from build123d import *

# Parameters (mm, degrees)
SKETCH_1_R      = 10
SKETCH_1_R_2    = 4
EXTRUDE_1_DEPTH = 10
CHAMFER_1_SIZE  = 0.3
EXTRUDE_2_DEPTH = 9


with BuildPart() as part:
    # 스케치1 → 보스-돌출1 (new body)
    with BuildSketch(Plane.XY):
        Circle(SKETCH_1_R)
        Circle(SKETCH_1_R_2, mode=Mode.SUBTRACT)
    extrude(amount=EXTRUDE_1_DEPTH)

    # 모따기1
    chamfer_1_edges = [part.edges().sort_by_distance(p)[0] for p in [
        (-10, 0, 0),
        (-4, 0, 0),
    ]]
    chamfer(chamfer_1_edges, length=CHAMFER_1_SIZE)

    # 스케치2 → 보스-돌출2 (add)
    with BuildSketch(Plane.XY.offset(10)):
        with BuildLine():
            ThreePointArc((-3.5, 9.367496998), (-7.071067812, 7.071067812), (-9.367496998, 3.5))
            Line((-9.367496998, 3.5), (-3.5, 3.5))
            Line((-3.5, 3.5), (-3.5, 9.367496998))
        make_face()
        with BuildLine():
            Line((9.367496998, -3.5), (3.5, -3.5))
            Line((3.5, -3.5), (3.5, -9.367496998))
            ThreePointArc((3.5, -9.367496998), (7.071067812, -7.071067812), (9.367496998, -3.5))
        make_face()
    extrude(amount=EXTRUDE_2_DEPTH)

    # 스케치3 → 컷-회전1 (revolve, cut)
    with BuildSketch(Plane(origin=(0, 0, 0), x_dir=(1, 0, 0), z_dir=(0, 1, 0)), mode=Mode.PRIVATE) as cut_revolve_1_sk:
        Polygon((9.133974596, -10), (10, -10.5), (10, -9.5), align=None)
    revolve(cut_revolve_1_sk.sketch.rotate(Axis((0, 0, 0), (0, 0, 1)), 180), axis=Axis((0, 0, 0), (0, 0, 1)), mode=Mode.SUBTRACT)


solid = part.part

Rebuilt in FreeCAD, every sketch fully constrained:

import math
import FreeCAD as App
import Part
import Sketcher

V = App.Vector
Q = App.Units.Quantity


def edges_at(feature, points):
    """Names of the edges that pass closest to the given points."""
    edges = feature.Shape.Edges
    near = lambda p: min(range(len(edges)), key=lambda i: edges[i].distToShape(Part.Vertex(*p))[0])
    return sorted({f"Edge{near(p) + 1}" for p in points})

doc = App.newDocument("Part")
body = doc.addObject("PartDesign::Body", "Body")

sketch1 = body.newObject("Sketcher::SketchObject", "Sketch")
sketch1.AttachmentSupport = (doc.getObject("XY_Plane"), [""])
sketch1.MapMode = "FlatFace"
sketch1.addGeometry(Part.Circle(V(0, 0, 0), V(0, 0, 1), 10), False)
sketch1.addGeometry(Part.Circle(V(0, 0, 0), V(0, 0, 1), 4), False)
sketch1.addConstraint(Sketcher.Constraint("Coincident", 0, 3, -1, 1))
sketch1.addConstraint(Sketcher.Constraint("Coincident", 1, 3, -1, 1))
sketch1.addConstraint(Sketcher.Constraint("Diameter", 0, 20.0))
sketch1.addConstraint(Sketcher.Constraint("Diameter", 1, 8.0))
pad1 = body.newObject("PartDesign::Pad", "Pad")
pad1.Profile = sketch1
pad1.Length = 10
doc.recompute()

chamfer = body.newObject("PartDesign::Chamfer", "Chamfer")
chamfer.Base = (pad1, edges_at(pad1, [(-10, 0, 0), (-4, 0, 0)]))
chamfer.Size = 0.3

sketch2 = body.newObject("Sketcher::SketchObject", "Sketch001")
sketch2.AttachmentSupport = (doc.getObject("XY_Plane"), [""])
sketch2.MapMode = "FlatFace"
sketch2.AttachmentOffset = App.Placement(V(0, 0, 10), App.Rotation())
sketch2.addGeometry(Part.ArcOfCircle(Part.Circle(V(0, 0, 0), V(0, 0, 1), 10), math.radians(110.487315), math.radians(159.512685)), False)
sketch2.addGeometry(Part.LineSegment(V(-9.367497, 3.5, 0), V(-3.5, 3.5, 0)), False)
sketch2.addGeometry(Part.LineSegment(V(-3.5, 3.5, 0), V(-3.5, 9.367497, 0)), False)
sketch2.addGeometry(Part.LineSegment(V(9.367497, -3.5, 0), V(3.5, -3.5, 0)), False)
sketch2.addGeometry(Part.LineSegment(V(3.5, -3.5, 0), V(3.5, -9.367497, 0)), False)
sketch2.addGeometry(Part.ArcOfCircle(Part.Circle(V(0, 0, 0), V(0, 0, 1), 10), math.radians(-69.512685), math.radians(-20.487315)), False)
sketch2.addConstraint(Sketcher.Constraint("Coincident", 0, 2, 1, 1))
sketch2.addConstraint(Sketcher.Constraint("Coincident", 1, 2, 2, 1))
sketch2.addConstraint(Sketcher.Constraint("Coincident", 2, 2, 0, 1))
sketch2.addConstraint(Sketcher.Constraint("Coincident", 3, 2, 4, 1))
sketch2.addConstraint(Sketcher.Constraint("Coincident", 4, 2, 5, 1))
sketch2.addConstraint(Sketcher.Constraint("Coincident", 5, 2, 3, 1))
sketch2.addConstraint(Sketcher.Constraint("Horizontal", 1))
sketch2.addConstraint(Sketcher.Constraint("Vertical", 2))
sketch2.addConstraint(Sketcher.Constraint("Horizontal", 3))
sketch2.addConstraint(Sketcher.Constraint("Vertical", 4))
sketch2.addConstraint(Sketcher.Constraint("Coincident", 0, 3, -1, 1))
sketch2.addConstraint(Sketcher.Constraint("Coincident", 5, 3, -1, 1))
sketch2.addConstraint(Sketcher.Constraint("Equal", 0, 5))
sketch2.addConstraint(Sketcher.Constraint("Symmetric", 1, 2, 3, 2, -1, 1))
sketch2.addConstraint(Sketcher.Constraint("Equal", 3, 2))
sketch2.addConstraint(Sketcher.Constraint("Radius", 0, 10.0))
sketch2.addConstraint(Sketcher.Constraint("DistanceX", 1, 2, 3, 2, 7.0))
pad2 = body.newObject("PartDesign::Pad", "Pad001")
pad2.Profile = sketch2
pad2.Length = 9

sketch3 = body.newObject("Sketcher::SketchObject", "Sketch002")
sketch3.AttachmentSupport = (doc.getObject("XZ_Plane"), [""])
sketch3.MapMode = "FlatFace"
sketch3.addGeometry(Part.LineSegment(V(9.133975, 10, 0), V(10, 10.5, 0)), False)
sketch3.addGeometry(Part.LineSegment(V(10, 10.5, 0), V(10, 9.5, 0)), False)
sketch3.addGeometry(Part.LineSegment(V(10, 9.5, 0), V(9.133975, 10, 0)), False)
sketch3.addConstraint(Sketcher.Constraint("Coincident", 0, 2, 1, 1))
sketch3.addConstraint(Sketcher.Constraint("Coincident", 1, 2, 2, 1))
sketch3.addConstraint(Sketcher.Constraint("Coincident", 2, 2, 0, 1))
sketch3.addConstraint(Sketcher.Constraint("Vertical", 1))
sketch3.addConstraint(Sketcher.Constraint("Equal", 0, 2))
sketch3.addConstraint(Sketcher.Constraint("DistanceY", 1, 2, 1, 1, 1.0))
sketch3.addConstraint(Sketcher.Constraint("Angle", 0, Q("30 deg")))
sketch3.addConstraint(Sketcher.Constraint("DistanceX", -1, 1, 0, 2, 10.0))
sketch3.addConstraint(Sketcher.Constraint("DistanceY", -1, 1, 2, 2, 10.0))
groove = body.newObject("PartDesign::Groove", "Groove")
groove.Profile = sketch3
groove.ReferenceAxis = (sketch3, ["V_Axis"])
groove.Angle = 360

doc.recompute()
